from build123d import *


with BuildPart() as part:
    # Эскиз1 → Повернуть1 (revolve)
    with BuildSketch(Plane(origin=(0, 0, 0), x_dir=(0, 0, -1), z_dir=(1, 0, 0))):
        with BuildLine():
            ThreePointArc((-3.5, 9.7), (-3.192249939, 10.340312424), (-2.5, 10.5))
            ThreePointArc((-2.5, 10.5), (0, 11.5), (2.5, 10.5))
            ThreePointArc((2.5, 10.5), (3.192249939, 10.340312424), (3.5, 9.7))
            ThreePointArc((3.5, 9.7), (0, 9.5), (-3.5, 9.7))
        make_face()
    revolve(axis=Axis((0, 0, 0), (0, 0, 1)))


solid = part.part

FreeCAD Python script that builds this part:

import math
import FreeCAD as App
import Part
import Sketcher

V = App.Vector

doc = App.newDocument("Part")
body = doc.addObject("PartDesign::Body", "Body")

sketch1 = body.newObject("Sketcher::SketchObject", "Sketch")
sketch1.AttachmentSupport = (doc.getObject("YZ_Plane"), [""])
sketch1.MapMode = "FlatFace"
sketch1.addGeometry([
    Part.ArcOfCircle(Part.Circle(V(9.7, 2.7, 0), V(0, 0, 1), 0.8), math.radians(-13), math.radians(90)),
    Part.ArcOfCircle(Part.Circle(V(40.2, 0, 0), V(0, 0, 1), 30.7), math.radians(173.46), math.radians(186.54)),
    Part.ArcOfCircle(Part.Circle(V(9.7, -2.7, 0), V(0, 0, 1), 0.8), math.radians(-90), math.radians(13)),
    Part.ArcOfCircle(Part.Circle(V(7.9, 0, 0), V(0, 0, 1), 3.6), math.radians(-44), math.radians(44)),
], False)
sketch1.addConstraint([
    Sketcher.Constraint("Coincident", 0, 2, 1, 1),
    Sketcher.Constraint("Coincident", 1, 2, 2, 1),
    Sketcher.Constraint("Coincident", 2, 2, 3, 1),
    Sketcher.Constraint("Coincident", 3, 2, 0, 1),
    Sketcher.Constraint("Equal", 0, 2),
    Sketcher.Constraint("Symmetric", 0, 3, 2, 3, -1),
    Sketcher.Constraint("PointOnObject", 1, 3, -1),
    Sketcher.Constraint("PointOnObject", 3, 3, -1),
    Sketcher.Constraint("Vertical", 2, 3, 0, 2),
    Sketcher.Constraint("Radius", 0, 0.82),
    Sketcher.Constraint("Radius", 1, 30.725),
    Sketcher.Constraint("Radius", 3, 3.625),
    Sketcher.Constraint("DistanceY", 1, 2, 0, 2, 7.0),
    Sketcher.Constraint("DistanceY", 1, 2, 2, 2, 1.0),
    Sketcher.Constraint("DistanceX", -1, 1, 0, 3, 9.7),
])
revolution = body.newObject("PartDesign::Revolution", "Revolution")
revolution.Profile = sketch1
revolution.ReferenceAxis = (sketch1, ["V_Axis"])
revolution.Angle = 360

doc.recompute()
